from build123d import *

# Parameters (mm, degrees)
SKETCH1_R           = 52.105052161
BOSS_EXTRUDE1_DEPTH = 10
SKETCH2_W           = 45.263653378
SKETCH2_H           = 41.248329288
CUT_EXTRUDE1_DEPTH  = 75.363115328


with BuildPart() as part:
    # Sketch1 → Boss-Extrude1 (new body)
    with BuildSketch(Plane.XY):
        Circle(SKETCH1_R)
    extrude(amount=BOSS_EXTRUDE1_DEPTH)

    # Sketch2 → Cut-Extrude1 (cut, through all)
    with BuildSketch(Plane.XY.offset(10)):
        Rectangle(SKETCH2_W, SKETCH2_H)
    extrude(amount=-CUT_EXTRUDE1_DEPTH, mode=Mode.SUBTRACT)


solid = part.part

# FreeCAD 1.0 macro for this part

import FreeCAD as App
import Part
import Sketcher
Q = App.Units.Quantity

doc = App.newDocument("Part")
body = doc.addObject("PartDesign::Body", "Body")

sketch1 = body.newObject("Sketcher::SketchObject", "Sketch")
sketch1.AttachmentSupport = (doc.getObject("XY_Plane"), [""])
sketch1.MapMode = "FlatFace"
sketch1.addGeometry(Part.Circle(App.Vector(0, 0, 0), App.Vector(0, 0, 1), 52.105052), False)
sketch1.addConstraint(Sketcher.Constraint("Coincident", 0, 3, -1, 1))
sketch1.addConstraint(Sketcher.Constraint("Diameter", 0, Q("104.210104 mm")))
pad1 = body.newObject("PartDesign::Pad", "Pad")
pad1.Profile = sketch1
pad1.Length = 10

sketch2 = body.newObject("Sketcher::SketchObject", "Sketch001")
sketch2.AttachmentSupport = (doc.getObject("XY_Plane"), [""])
sketch2.MapMode = "FlatFace"
sketch2.AttachmentOffset = App.Placement(App.Vector(0, 0, 10), App.Rotation())
sketch2.addGeometry(Part.LineSegment(App.Vector(-22.631827, 20.624165, 0), App.Vector(-22.631827, -20.624165, 0)), False)
sketch2.addGeometry(Part.LineSegment(App.Vector(-22.631827, -20.624165, 0), App.Vector(22.631827, -20.624165, 0)), False)
sketch2.addGeometry(Part.LineSegment(App.Vector(22.631827, -20.624165, 0), App.Vector(22.631827, 20.624165, 0)), False)
sketch2.addGeometry(Part.LineSegment(App.Vector(22.631827, 20.624165, 0), App.Vector(-22.631827, 20.624165, 0)), False)
sketch2.addConstraint(Sketcher.Constraint("Coincident", 0, 2, 1, 1))
sketch2.addConstraint(Sketcher.Constraint("Coincident", 1, 2, 2, 1))
sketch2.addConstraint(Sketcher.Constraint("Coincident", 2, 2, 3, 1))
sketch2.addConstraint(Sketcher.Constraint("Coincident", 3, 2, 0, 1))
sketch2.addConstraint(Sketcher.Constraint("Vertical", 0))
sketch2.addConstraint(Sketcher.Constraint("Horizontal", 1))
sketch2.addConstraint(Sketcher.Constraint("Vertical", 2))
sketch2.addConstraint(Sketcher.Constraint("Horizontal", 3))
sketch2.addConstraint(Sketcher.Constraint("Symmetric", 0, 2, 2, 2, -1, 1))
sketch2.addConstraint(Sketcher.Constraint("DistanceY", 0, 2, 0, 1, Q("41.248329 mm")))
sketch2.addConstraint(Sketcher.Constraint("DistanceX", 1, 1, 1, 2, Q("45.263653 mm")))
pocket1 = body.newObject("PartDesign::Pocket", "Pocket")
pocket1.Profile = sketch2
pocket1.Type = "ThroughAll"

doc.recompute()
